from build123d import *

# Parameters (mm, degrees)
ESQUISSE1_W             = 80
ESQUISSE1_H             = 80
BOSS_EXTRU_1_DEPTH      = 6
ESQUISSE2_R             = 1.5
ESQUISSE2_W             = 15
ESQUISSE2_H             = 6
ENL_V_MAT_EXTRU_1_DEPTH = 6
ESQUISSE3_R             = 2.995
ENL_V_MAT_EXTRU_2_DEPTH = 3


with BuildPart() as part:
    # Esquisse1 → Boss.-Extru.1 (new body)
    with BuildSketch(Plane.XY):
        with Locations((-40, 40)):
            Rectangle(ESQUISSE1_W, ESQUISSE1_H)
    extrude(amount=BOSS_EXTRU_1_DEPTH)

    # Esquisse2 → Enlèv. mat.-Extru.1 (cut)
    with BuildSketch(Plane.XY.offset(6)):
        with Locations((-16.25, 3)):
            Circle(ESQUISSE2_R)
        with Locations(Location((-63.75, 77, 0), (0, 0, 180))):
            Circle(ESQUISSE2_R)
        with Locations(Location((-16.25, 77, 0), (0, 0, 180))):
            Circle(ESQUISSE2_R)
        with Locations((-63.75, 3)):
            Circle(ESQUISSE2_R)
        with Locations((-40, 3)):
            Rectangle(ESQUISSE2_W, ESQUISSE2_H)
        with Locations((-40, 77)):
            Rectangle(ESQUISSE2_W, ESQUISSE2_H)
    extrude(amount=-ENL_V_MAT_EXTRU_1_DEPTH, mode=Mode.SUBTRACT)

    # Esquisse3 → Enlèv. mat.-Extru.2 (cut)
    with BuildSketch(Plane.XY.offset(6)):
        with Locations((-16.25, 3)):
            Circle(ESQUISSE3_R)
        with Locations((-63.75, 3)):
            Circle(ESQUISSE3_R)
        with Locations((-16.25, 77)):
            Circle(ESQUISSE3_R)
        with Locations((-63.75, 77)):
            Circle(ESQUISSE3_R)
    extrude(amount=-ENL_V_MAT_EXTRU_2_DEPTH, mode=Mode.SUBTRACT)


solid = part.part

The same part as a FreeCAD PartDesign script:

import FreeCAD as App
import Part
import Sketcher
Q = App.Units.Quantity

doc = App.newDocument("Part")
body = doc.addObject("PartDesign::Body", "Body")

sketch1 = doc.addObject("Sketcher::SketchObject", "Sketch")
body.addObject(sketch1)
sketch1.AttachmentSupport = (doc.XY_Plane, [""])
sketch1.MapMode = "FlatFace"
sketch1.addGeometry(Part.LineSegment(App.Vector(-80, 80, 0), App.Vector(-80, 0, 0)), False)
sketch1.addGeometry(Part.LineSegment(App.Vector(-80, 0, 0), App.Vector(0, 0, 0)), False)
sketch1.addGeometry(Part.LineSegment(App.Vector(0, 0, 0), App.Vector(0, 80, 0)), False)
sketch1.addGeometry(Part.LineSegment(App.Vector(0, 80, 0), App.Vector(-80, 80, 0)), False)
sketch1.addConstraint(Sketcher.Constraint("Coincident", 0, 2, 1, 1))
sketch1.addConstraint(Sketcher.Constraint("Coincident", 1, 2, 2, 1))
sketch1.addConstraint(Sketcher.Constraint("Coincident", 2, 2, 3, 1))
sketch1.addConstraint(Sketcher.Constraint("Coincident", 3, 2, 0, 1))
sketch1.addConstraint(Sketcher.Constraint("Vertical", 0))
sketch1.addConstraint(Sketcher.Constraint("Horizontal", 1))
sketch1.addConstraint(Sketcher.Constraint("Vertical", 2))
sketch1.addConstraint(Sketcher.Constraint("Horizontal", 3))
sketch1.addConstraint(Sketcher.Constraint("Coincident", 1, 2, -1, 1))
sketch1.addConstraint(Sketcher.Constraint("Equal", 3, 0))
sketch1.addConstraint(Sketcher.Constraint("DistanceX", 1, 1, 1, 2, Q("80 mm")))
pad1 = doc.addObject("PartDesign::Pad", "Pad")
body.addObject(pad1)
pad1.Profile = sketch1
pad1.Length = 6

sketch2 = doc.addObject("Sketcher::SketchObject", "Sketch001")
body.addObject(sketch2)
sketch2.AttachmentSupport = (doc.XY_Plane, [""])
sketch2.MapMode = "FlatFace"
sketch2.AttachmentOffset = App.Placement(App.Vector(0, 0, 6), App.Rotation())
sketch2.addGeometry(Part.Circle(App.Vector(-16.2, 3, 0), App.Vector(0, 0, 1), 1.5), False)
sketch2.addGeometry(Part.Circle(App.Vector(-63.8, 77, 0), App.Vector(0, 0, 1), 1.5), False)
sketch2.addGeometry(Part.Circle(App.Vector(-16.2, 77, 0), App.Vector(0, 0, 1), 1.5), False)
sketch2.addGeometry(Part.Circle(App.Vector(-63.8, 3, 0), App.Vector(0, 0, 1), 1.5), False)
sketch2.addGeometry(Part.LineSegment(App.Vector(-47.5, 6, 0), App.Vector(-47.5, 0, 0)), False)
sketch2.addGeometry(Part.LineSegment(App.Vector(-47.5, 0, 0), App.Vector(-32.5, 0, 0)), False)
sketch2.addGeometry(Part.LineSegment(App.Vector(-32.5, 0, 0), App.Vector(-32.5, 6, 0)), False)
sketch2.addGeometry(Part.LineSegment(App.Vector(-32.5, 6, 0), App.Vector(-47.5, 6, 0)), False)
sketch2.addGeometry(Part.LineSegment(App.Vector(-47.5, 80, 0), App.Vector(-47.5, 74, 0)), False)
sketch2.addGeometry(Part.LineSegment(App.Vector(-47.5, 74, 0), App.Vector(-32.5, 74, 0)), False)
sketch2.addGeometry(Part.LineSegment(App.Vector(-32.5, 74, 0), App.Vector(-32.5, 80, 0)), False)
sketch2.addGeometry(Part.LineSegment(App.Vector(-32.5, 80, 0), App.Vector(-47.5, 80, 0)), False)
sketch2.addConstraint(Sketcher.Constraint("Coincident", 4, 2, 5, 1))
sketch2.addConstraint(Sketcher.Constraint("Coincident", 5, 2, 6, 1))
sketch2.addConstraint(Sketcher.Constraint("Coincident", 6, 2, 7, 1))
sketch2.addConstraint(Sketcher.Constraint("Coincident", 7, 2, 4, 1))
sketch2.addConstraint(Sketcher.Constraint("Coincident", 8, 2, 9, 1))
sketch2.addConstraint(Sketcher.Constraint("Coincident", 9, 2, 10, 1))
sketch2.addConstraint(Sketcher.Constraint("Coincident", 10, 2, 11, 1))
sketch2.addConstraint(Sketcher.Constraint("Coincident", 11, 2, 8, 1))
sketch2.addConstraint(Sketcher.Constraint("Vertical", 4))
sketch2.addConstraint(Sketcher.Constraint("Horizontal", 5))
sketch2.addConstraint(Sketcher.Constraint("Vertical", 6))
sketch2.addConstraint(Sketcher.Constraint("Horizontal", 7))
sketch2.addConstraint(Sketcher.Constraint("Vertical", 8))
sketch2.addConstraint(Sketcher.Constraint("Horizontal", 9))
sketch2.addConstraint(Sketcher.Constraint("Vertical", 10))
sketch2.addConstraint(Sketcher.Constraint("Horizontal", 11))
sketch2.addConstraint(Sketcher.Constraint("Equal", 0, 1))
sketch2.addConstraint(Sketcher.Constraint("Equal", 1, 2))
sketch2.addConstraint(Sketcher.Constraint("Equal", 2, 3))
sketch2.addConstraint(Sketcher.Constraint("PointOnObject", 4, 2, -1))
sketch2.addConstraint(Sketcher.Constraint("Horizontal", 1, 3, 2, 3))
sketch2.addConstraint(Sketcher.Constraint("Horizontal", 0, 3, 3, 3))
sketch2.addConstraint(Sketcher.Constraint("Vertical", 0, 3, 2, 3))
sketch2.addConstraint(Sketcher.Constraint("Vertical", 1, 3, 3, 3))
sketch2.addConstraint(Sketcher.Constraint("Vertical", 7, 2, 8, 2))
sketch2.addConstraint(Sketcher.Constraint("Vertical", 6, 2, 9, 2))
sketch2.addConstraint(Sketcher.Constraint("Equal", 6, 8))
sketch2.addConstraint(Sketcher.Constraint("Diameter", 0, Q("3 mm")))
sketch2.addConstraint(Sketcher.Constraint("DistanceX", 5, 1, 5, 2, Q("15 mm")))
sketch2.addConstraint(Sketcher.Constraint("DistanceY", 4, 2, 4, 1, Q("6 mm")))
sketch2.addConstraint(Sketcher.Constraint("DistanceY", -1, 1, 0, 3, Q("3 mm")))
sketch2.addConstraint(Sketcher.Constraint("DistanceY", -1, 1, 1, 3, Q("77 mm")))
sketch2.addConstraint(Sketcher.Constraint("DistanceY", -1, 1, 8, 2, Q("74 mm")))
sketch2.addConstraint(Sketcher.Constraint("DistanceX", 4, 2, -1, 1, Q("47.5 mm")))
sketch2.addConstraint(Sketcher.Constraint("DistanceX", 1, 3, 0, 3, Q("47.5 mm")))
sketch2.addConstraint(Sketcher.Constraint("DistanceX", 0, 3, -1, 1, Q("16.25 mm")))
pocket1 = doc.addObject("PartDesign::Pocket", "Pocket")
body.addObject(pocket1)
pocket1.Profile = sketch2
pocket1.Length = 6

sketch3 = doc.addObject("Sketcher::SketchObject", "Sketch002")
body.addObject(sketch3)
sketch3.AttachmentSupport = (doc.XY_Plane, [""])
sketch3.MapMode = "FlatFace"
sketch3.AttachmentOffset = App.Placement(App.Vector(0, 0, 6), App.Rotation())
sketch3.addGeometry(Part.Circle(App.Vector(-16.2, 3, 0), App.Vector(0, 0, 1), 3), False)
sketch3.addGeometry(Part.Circle(App.Vector(-63.8, 3, 0), App.Vector(0, 0, 1), 3), False)
sketch3.addGeometry(Part.Circle(App.Vector(-16.2, 77, 0), App.Vector(0, 0, 1), 3), False)
sketch3.addGeometry(Part.Circle(App.Vector(-63.8, 77, 0), App.Vector(0, 0, 1), 3), False)
sketch3.addConstraint(Sketcher.Constraint("Equal", 0, 1))
sketch3.addConstraint(Sketcher.Constraint("Equal", 1, 2))
sketch3.addConstraint(Sketcher.Constraint("Equal", 2, 3))
sketch3.addConstraint(Sketcher.Constraint("Horizontal", 0, 3, 1, 3))
sketch3.addConstraint(Sketcher.Constraint("Horizontal", 2, 3, 3, 3))
sketch3.addConstraint(Sketcher.Constraint("Vertical", 0, 3, 2, 3))
sketch3.addConstraint(Sketcher.Constraint("Vertical", 1, 3, 3, 3))
sketch3.addConstraint(Sketcher.Constraint("Diameter", 0, Q("5.99 mm")))
sketch3.addConstraint(Sketcher.Constraint("DistanceY", -1, 1, 0, 3, Q("3 mm")))
sketch3.addConstraint(Sketcher.Constraint("DistanceY", -1, 1, 2, 3, Q("77 mm")))
sketch3.addConstraint(Sketcher.Constraint("DistanceX", 1, 3, 0, 3, Q("47.5 mm")))
sketch3.addConstraint(Sketcher.Constraint("DistanceX", 0, 3, -1, 1, Q("16.25 mm")))
pocket2 = doc.addObject("PartDesign::Pocket", "Pocket001")
body.addObject(pocket2)
pocket2.Profile = sketch3
pocket2.Length = 3

doc.recompute()
